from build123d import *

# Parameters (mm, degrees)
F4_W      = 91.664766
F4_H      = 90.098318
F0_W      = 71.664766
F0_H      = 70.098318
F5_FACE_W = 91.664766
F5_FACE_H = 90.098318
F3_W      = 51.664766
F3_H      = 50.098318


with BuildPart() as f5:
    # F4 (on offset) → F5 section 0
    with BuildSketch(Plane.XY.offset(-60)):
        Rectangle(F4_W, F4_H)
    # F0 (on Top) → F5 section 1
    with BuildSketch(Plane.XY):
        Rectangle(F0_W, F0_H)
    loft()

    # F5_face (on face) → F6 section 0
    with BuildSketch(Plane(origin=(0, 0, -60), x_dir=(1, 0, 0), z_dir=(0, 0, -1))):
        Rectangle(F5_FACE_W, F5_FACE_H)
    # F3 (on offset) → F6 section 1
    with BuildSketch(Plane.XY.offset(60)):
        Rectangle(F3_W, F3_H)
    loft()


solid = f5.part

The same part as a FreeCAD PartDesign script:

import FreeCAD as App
import Part
import Sketcher

doc = App.newDocument("Part")
body = doc.addObject("PartDesign::Body", "Body")

sketch1 = body.newObject("Sketcher::SketchObject", "Sketch")
sketch1.AttachmentSupport = (doc.getObject("XY_Plane"), [""])
sketch1.MapMode = "FlatFace"
sketch1.AttachmentOffset = App.Placement(App.Vector(0, 0, -60), App.Rotation())
sketch1.addGeometry(Part.LineSegment(App.Vector(-45.832383, 45.049159, 0), App.Vector(-45.832383, -45.049159, 0)), False)
sketch1.addGeometry(Part.LineSegment(App.Vector(-45.832383, -45.049159, 0), App.Vector(45.832383, -45.049159, 0)), False)
sketch1.addGeometry(Part.LineSegment(App.Vector(45.832383, -45.049159, 0), App.Vector(45.832383, 45.049159, 0)), False)
sketch1.addGeometry(Part.LineSegment(App.Vector(45.832383, 45.049159, 0), App.Vector(-45.832383, 45.049159, 0)), False)
sketch1.addConstraint(Sketcher.Constraint("Coincident", 0, 2, 1, 1))
sketch1.addConstraint(Sketcher.Constraint("Coincident", 1, 2, 2, 1))
sketch1.addConstraint(Sketcher.Constraint("Coincident", 2, 2, 3, 1))
sketch1.addConstraint(Sketcher.Constraint("Coincident", 3, 2, 0, 1))
sketch1.addConstraint(Sketcher.Constraint("Vertical", 0))
sketch1.addConstraint(Sketcher.Constraint("Horizontal", 1))
sketch1.addConstraint(Sketcher.Constraint("Vertical", 2))
sketch1.addConstraint(Sketcher.Constraint("Horizontal", 3))
sketch1.addConstraint(Sketcher.Constraint("Symmetric", 0, 2, 2, 2, -1, 1))
sketch1.addConstraint(Sketcher.Constraint("DistanceY", 0, 2, 0, 1, 90.098318))
sketch1.addConstraint(Sketcher.Constraint("DistanceX", 1, 1, 1, 2, 91.664766))

sketch2 = body.newObject("Sketcher::SketchObject", "Sketch001")
sketch2.AttachmentSupport = (doc.getObject("XY_Plane"), [""])
sketch2.MapMode = "FlatFace"
sketch2.addGeometry(Part.LineSegment(App.Vector(-35.832383, 35.049159, 0), App.Vector(-35.832383, -35.049159, 0)), False)
sketch2.addGeometry(Part.LineSegment(App.Vector(-35.832383, -35.049159, 0), App.Vector(35.832383, -35.049159, 0)), False)
sketch2.addGeometry(Part.LineSegment(App.Vector(35.832383, -35.049159, 0), App.Vector(35.832383, 35.049159, 0)), False)
sketch2.addGeometry(Part.LineSegment(App.Vector(35.832383, 35.049159, 0), App.Vector(-35.832383, 35.049159, 0)), False)
sketch2.addConstraint(Sketcher.Constraint("Coincident", 0, 2, 1, 1))
sketch2.addConstraint(Sketcher.Constraint("Coincident", 1, 2, 2, 1))
sketch2.addConstraint(Sketcher.Constraint("Coincident", 2, 2, 3, 1))
sketch2.addConstraint(Sketcher.Constraint("Coincident", 3, 2, 0, 1))
sketch2.addConstraint(Sketcher.Constraint("Vertical", 0))
sketch2.addConstraint(Sketcher.Constraint("Horizontal", 1))
sketch2.addConstraint(Sketcher.Constraint("Vertical", 2))
sketch2.addConstraint(Sketcher.Constraint("Horizontal", 3))
sketch2.addConstraint(Sketcher.Constraint("Symmetric", 0, 2, 2, 2, -1, 1))
sketch2.addConstraint(Sketcher.Constraint("DistanceY", 0, 2, 0, 1, 70.098318))
sketch2.addConstraint(Sketcher.Constraint("DistanceX", 1, 1, 1, 2, 71.664766))

additiveloft = body.newObject("PartDesign::AdditiveLoft", "AdditiveLoft")
additiveloft.Profile = sketch1
additiveloft.Sections = [sketch2]

sketch3 = body.newObject("Sketcher::SketchObject", "Sketch002")
sketch3.AttachmentSupport = (doc.getObject("XY_Plane"), [""])
sketch3.MapMode = "FlatFace"
sketch3.AttachmentOffset = App.Placement(App.Vector(0, 0, -60), App.Rotation())
sketch3.addGeometry(Part.LineSegment(App.Vector(-45.832383, -45.049159, 0), App.Vector(-45.832383, 45.049159, 0)), False)
sketch3.addGeometry(Part.LineSegment(App.Vector(-45.832383, 45.049159, 0), App.Vector(45.832383, 45.049159, 0)), False)
sketch3.addGeometry(Part.LineSegment(App.Vector(45.832383, 45.049159, 0), App.Vector(45.832383, -45.049159, 0)), False)
sketch3.addGeometry(Part.LineSegment(App.Vector(45.832383, -45.049159, 0), App.Vector(-45.832383, -45.049159, 0)), False)
sketch3.addConstraint(Sketcher.Constraint("Coincident", 0, 2, 1, 1))
sketch3.addConstraint(Sketcher.Constraint("Coincident", 1, 2, 2, 1))
sketch3.addConstraint(Sketcher.Constraint("Coincident", 2, 2, 3, 1))
sketch3.addConstraint(Sketcher.Constraint("Coincident", 3, 2, 0, 1))
sketch3.addConstraint(Sketcher.Constraint("Vertical", 0))
sketch3.addConstraint(Sketcher.Constraint("Horizontal", 1))
sketch3.addConstraint(Sketcher.Constraint("Vertical", 2))
sketch3.addConstraint(Sketcher.Constraint("Horizontal", 3))
sketch3.addConstraint(Sketcher.Constraint("Symmetric", 0, 2, 2, 2, -1, 1))
sketch3.addConstraint(Sketcher.Constraint("DistanceY", 0, 1, 0, 2, 90.098318))
sketch3.addConstraint(Sketcher.Constraint("DistanceX", 1, 1, 1, 2, 91.664766))

sketch4 = body.newObject("Sketcher::SketchObject", "Sketch003")
sketch4.AttachmentSupport = (doc.getObject("XY_Plane"), [""])
sketch4.MapMode = "FlatFace"
sketch4.AttachmentOffset = App.Placement(App.Vector(0, 0, 60), App.Rotation())
sketch4.addGeometry(Part.LineSegment(App.Vector(-25.832383, 25.049159, 0), App.Vector(-25.832383, -25.049159, 0)), False)
sketch4.addGeometry(Part.LineSegment(App.Vector(-25.832383, -25.049159, 0), App.Vector(25.832383, -25.049159, 0)), False)
sketch4.addGeometry(Part.LineSegment(App.Vector(25.832383, -25.049159, 0), App.Vector(25.832383, 25.049159, 0)), False)
sketch4.addGeometry(Part.LineSegment(App.Vector(25.832383, 25.049159, 0), App.Vector(-25.832383, 25.049159, 0)), False)
sketch4.addConstraint(Sketcher.Constraint("Coincident", 0, 2, 1, 1))
sketch4.addConstraint(Sketcher.Constraint("Coincident", 1, 2, 2, 1))
sketch4.addConstraint(Sketcher.Constraint("Coincident", 2, 2, 3, 1))
sketch4.addConstraint(Sketcher.Constraint("Coincident", 3, 2, 0, 1))
sketch4.addConstraint(Sketcher.Constraint("Vertical", 0))
sketch4.addConstraint(Sketcher.Constraint("Horizontal", 1))
sketch4.addConstraint(Sketcher.Constraint("Vertical", 2))
sketch4.addConstraint(Sketcher.Constraint("Horizontal", 3))
sketch4.addConstraint(Sketcher.Constraint("Symmetric", 0, 2, 2, 2, -1, 1))
sketch4.addConstraint(Sketcher.Constraint("DistanceX", 1, 1, 1, 2, 51.664766))
sketch4.addConstraint(Sketcher.Constraint("DistanceY", 0, 2, 0, 1, 50.098318))

additiveloft2 = body.newObject("PartDesign::AdditiveLoft", "AdditiveLoft001")
additiveloft2.Profile = sketch3
additiveloft2.Sections = [sketch4]

doc.recompute()
